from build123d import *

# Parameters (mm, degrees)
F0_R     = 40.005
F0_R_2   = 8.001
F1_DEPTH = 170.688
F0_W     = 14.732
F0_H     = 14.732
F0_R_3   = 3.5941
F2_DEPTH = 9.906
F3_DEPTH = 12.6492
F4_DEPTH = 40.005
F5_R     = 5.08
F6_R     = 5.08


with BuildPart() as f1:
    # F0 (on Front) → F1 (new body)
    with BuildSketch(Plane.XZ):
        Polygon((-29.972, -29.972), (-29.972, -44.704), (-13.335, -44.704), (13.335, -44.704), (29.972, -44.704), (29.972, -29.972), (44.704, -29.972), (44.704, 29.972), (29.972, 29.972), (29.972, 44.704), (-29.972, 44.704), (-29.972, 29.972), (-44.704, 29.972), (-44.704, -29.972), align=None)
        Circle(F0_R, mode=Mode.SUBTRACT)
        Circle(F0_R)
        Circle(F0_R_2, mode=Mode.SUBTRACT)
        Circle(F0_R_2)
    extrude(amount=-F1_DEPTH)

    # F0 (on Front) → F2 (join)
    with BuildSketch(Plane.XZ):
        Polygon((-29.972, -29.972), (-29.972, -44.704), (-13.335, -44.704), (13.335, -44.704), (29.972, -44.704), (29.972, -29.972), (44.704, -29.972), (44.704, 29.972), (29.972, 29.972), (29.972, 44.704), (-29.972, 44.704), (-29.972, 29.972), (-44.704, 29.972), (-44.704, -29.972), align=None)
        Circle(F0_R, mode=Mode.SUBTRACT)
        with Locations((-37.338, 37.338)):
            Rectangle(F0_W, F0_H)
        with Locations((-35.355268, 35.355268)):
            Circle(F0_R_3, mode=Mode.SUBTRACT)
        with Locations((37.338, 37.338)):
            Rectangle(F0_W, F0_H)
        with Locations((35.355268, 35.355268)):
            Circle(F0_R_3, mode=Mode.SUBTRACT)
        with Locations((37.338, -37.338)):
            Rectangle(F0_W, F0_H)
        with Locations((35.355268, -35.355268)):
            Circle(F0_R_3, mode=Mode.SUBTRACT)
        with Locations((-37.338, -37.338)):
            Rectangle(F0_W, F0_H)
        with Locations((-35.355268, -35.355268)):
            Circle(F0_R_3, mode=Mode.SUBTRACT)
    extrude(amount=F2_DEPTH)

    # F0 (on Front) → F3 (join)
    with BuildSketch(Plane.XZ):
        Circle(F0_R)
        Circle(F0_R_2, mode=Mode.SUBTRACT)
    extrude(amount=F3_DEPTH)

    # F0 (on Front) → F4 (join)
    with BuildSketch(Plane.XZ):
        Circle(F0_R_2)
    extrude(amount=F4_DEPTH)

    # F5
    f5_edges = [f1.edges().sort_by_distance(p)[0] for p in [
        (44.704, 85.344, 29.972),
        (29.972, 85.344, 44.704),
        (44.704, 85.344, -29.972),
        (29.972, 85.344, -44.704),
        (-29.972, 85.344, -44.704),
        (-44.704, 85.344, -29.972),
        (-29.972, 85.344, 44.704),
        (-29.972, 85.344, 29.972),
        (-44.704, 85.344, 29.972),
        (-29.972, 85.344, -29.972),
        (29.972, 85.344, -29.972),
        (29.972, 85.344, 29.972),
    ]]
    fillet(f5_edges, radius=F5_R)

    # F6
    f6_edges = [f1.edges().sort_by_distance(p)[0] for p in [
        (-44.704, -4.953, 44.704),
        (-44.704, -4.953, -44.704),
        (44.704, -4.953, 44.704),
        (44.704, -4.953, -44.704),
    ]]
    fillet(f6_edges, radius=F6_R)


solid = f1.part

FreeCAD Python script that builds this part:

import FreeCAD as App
import Part
import Sketcher
from FreeCAD import Vector
Q = App.Units.Quantity


def edges_at(feature, points):
    """Names of the edges that pass closest to the given points."""
    edges = feature.Shape.Edges
    near = lambda p: min(range(len(edges)), key=lambda i: edges[i].distToShape(Part.Vertex(*p))[0])
    return sorted({f"Edge{near(p) + 1}" for p in points})

doc = App.newDocument("Part")
body = doc.addObject("PartDesign::Body", "Body")

# Sketch on XZ plane
sketch1 = body.newObject("Sketcher::SketchObject", "Sketch")
sketch1.AttachmentSupport = (doc.getObject("XZ_Plane"), [""])
sketch1.MapMode = "FlatFace"
sketch1.addGeometry([
    Part.LineSegment(Vector(-29.972, -29.972, 0), Vector(-29.972, -44.704, 0)),  # 0
    Part.LineSegment(Vector(-29.972, -44.704, 0), Vector(29.972, -44.704, 0)),  # 1
    Part.LineSegment(Vector(29.972, -44.704, 0), Vector(29.972, -29.972, 0)),  # 2
    Part.LineSegment(Vector(29.972, -29.972, 0), Vector(44.704, -29.972, 0)),  # 3
    Part.LineSegment(Vector(44.704, -29.972, 0), Vector(44.704, 29.972, 0)),  # 4
    Part.LineSegment(Vector(44.704, 29.972, 0), Vector(29.972, 29.972, 0)),  # 5
    Part.LineSegment(Vector(29.972, 29.972, 0), Vector(29.972, 44.704, 0)),  # 6
    Part.LineSegment(Vector(29.972, 44.704, 0), Vector(-29.972, 44.704, 0)),  # 7
    Part.LineSegment(Vector(-29.972, 44.704, 0), Vector(-29.972, 29.972, 0)),  # 8
    Part.LineSegment(Vector(-29.972, 29.972, 0), Vector(-44.704, 29.972, 0)),  # 9
    Part.LineSegment(Vector(-44.704, 29.972, 0), Vector(-44.704, -29.972, 0)),  # 10
    Part.LineSegment(Vector(-44.704, -29.972, 0), Vector(-29.972, -29.972, 0)),  # 11
], False)
sketch1.addConstraint([
    Sketcher.Constraint("Coincident", 0, 2, 1, 1),
    Sketcher.Constraint("Coincident", 1, 2, 2, 1),
    Sketcher.Constraint("Coincident", 2, 2, 3, 1),
    Sketcher.Constraint("Coincident", 3, 2, 4, 1),
    Sketcher.Constraint("Coincident", 4, 2, 5, 1),
    Sketcher.Constraint("Coincident", 5, 2, 6, 1),
    Sketcher.Constraint("Coincident", 6, 2, 7, 1),
    Sketcher.Constraint("Coincident", 7, 2, 8, 1),
    Sketcher.Constraint("Coincident", 8, 2, 9, 1),
    Sketcher.Constraint("Coincident", 9, 2, 10, 1),
    Sketcher.Constraint("Coincident", 10, 2, 11, 1),
    Sketcher.Constraint("Coincident", 11, 2, 0, 1),
    Sketcher.Constraint("Vertical", 0),
    Sketcher.Constraint("Horizontal", 1),
    Sketcher.Constraint("Vertical", 2),
    Sketcher.Constraint("Horizontal", 3),
    Sketcher.Constraint("Vertical", 4),
    Sketcher.Constraint("Horizontal", 5),
    Sketcher.Constraint("Vertical", 6),
    Sketcher.Constraint("Horizontal", 7),
    Sketcher.Constraint("Vertical", 8),
    Sketcher.Constraint("Horizontal", 9),
    Sketcher.Constraint("Vertical", 10),
    Sketcher.Constraint("Horizontal", 11),
    Sketcher.Constraint("Symmetric", 0, 2, 6, 2, -1, 1),
    Sketcher.Constraint("Symmetric", 2, 2, 8, 2, -1, 1),
    Sketcher.Constraint("Symmetric", 4, 2, 10, 2, -1, 1),
    Sketcher.Constraint("Symmetric", 5, 2, 8, 2, -2),
    Sketcher.Constraint("Equal", 11, 0),
    Sketcher.Constraint("Equal", 7, 4),
    Sketcher.Constraint("DistanceX", 1, 1, 1, 2, Q("2.36 in")),
    Sketcher.Constraint("DistanceX", 3, 1, 3, 2, Q("0.58 in")),
])
pad1 = body.newObject("PartDesign::Pad", "Pad")
pad1.Profile = sketch1
pad1.Length = Q("6.72 in")
pad1.Reversed = True

# Sketch on XZ plane
sketch2 = body.newObject("Sketcher::SketchObject", "Sketch001")
sketch2.AttachmentSupport = (doc.getObject("XZ_Plane"), [""])
sketch2.MapMode = "FlatFace"
sketch2.addGeometry([
    Part.LineSegment(Vector(44.704, -44.704, 0), Vector(44.704, 44.704, 0)),  # 0
    Part.LineSegment(Vector(44.704, 44.704, 0), Vector(-44.704, 44.704, 0)),  # 1
    Part.LineSegment(Vector(-44.704, 44.704, 0), Vector(-44.704, -44.704, 0)),  # 2
    Part.LineSegment(Vector(-44.704, -44.704, 0), Vector(44.704, -44.704, 0)),  # 3
    Part.Circle(Vector(-35.355268, -35.355268, 0), Vector(0, 0, 1), 3.5941),  # 4
    Part.Circle(Vector(35.355268, -35.355268, 0), Vector(0, 0, 1), 3.5941),  # 5
    Part.Circle(Vector(-35.355268, 35.355268, 0), Vector(0, 0, 1), 3.5941),  # 6
    Part.Circle(Vector(0, 0, 0), Vector(0, 0, 1), 40.005),  # 7
    Part.Circle(Vector(35.355268, 35.355268, 0), Vector(0, 0, 1), 3.5941),  # 8
], False)
sketch2.addConstraint([
    Sketcher.Constraint("Coincident", 0, 2, 1, 1),
    Sketcher.Constraint("Coincident", 1, 2, 2, 1),
    Sketcher.Constraint("Coincident", 2, 2, 3, 1),
    Sketcher.Constraint("Coincident", 3, 2, 0, 1),
    Sketcher.Constraint("Vertical", 0),
    Sketcher.Constraint("Horizontal", 1),
    Sketcher.Constraint("Vertical", 2),
    Sketcher.Constraint("Horizontal", 3),
    Sketcher.Constraint("Coincident", 7, 3, -1, 1),
    Sketcher.Constraint("Equal", 4, 5),
    Sketcher.Constraint("Equal", 5, 6),
    Sketcher.Constraint("Equal", 6, 8),
    Sketcher.Constraint("Symmetric", 5, 3, 6, 3, -1, 1),
    Sketcher.Constraint("Symmetric", 4, 3, 8, 3, -1, 1),
    Sketcher.Constraint("Symmetric", 0, 2, 2, 2, -1, 1),
    Sketcher.Constraint("Symmetric", 4, 3, 5, 3, -2),
    Sketcher.Constraint("Equal", 3, 0),
    Sketcher.Constraint("Diameter", 7, Q("3.15 in")),
    Sketcher.Constraint("Diameter", 4, Q("0.283 in")),
    Sketcher.Constraint("DistanceX", 1, 2, 1, 1, Q("3.52 in")),
    Sketcher.Constraint("DistanceX", 4, 3, -1, 1, Q("35.355268 mm")),
    Sketcher.Constraint("DistanceY", 4, 3, -1, 1, Q("35.355268 mm")),
])
pad2 = body.newObject("PartDesign::Pad", "Pad001")
pad2.Profile = sketch2
pad2.Length = Q("0.39 in")

# Sketch on XZ plane
sketch3 = body.newObject("Sketcher::SketchObject", "Sketch002")
sketch3.AttachmentSupport = (doc.getObject("XZ_Plane"), [""])
sketch3.MapMode = "FlatFace"
sketch3.addGeometry([
    Part.Circle(Vector(0, 0, 0), Vector(0, 0, 1), 40.005),
    Part.Circle(Vector(0, 0, 0), Vector(0, 0, 1), 8.001),
], False)
sketch3.addConstraint([
    Sketcher.Constraint("Coincident", 0, 3, -1, 1),
    Sketcher.Constraint("Coincident", 1, 3, -1, 1),
    Sketcher.Constraint("Diameter", 0, Q("3.15 in")),
    Sketcher.Constraint("Diameter", 1, Q("0.63 in")),
])
pad3 = body.newObject("PartDesign::Pad", "Pad002")
pad3.Profile = sketch3
pad3.Length = Q("0.498 in")

# Sketch on XZ plane
sketch4 = body.newObject("Sketcher::SketchObject", "Sketch003")
sketch4.AttachmentSupport = (doc.getObject("XZ_Plane"), [""])
sketch4.MapMode = "FlatFace"
sketch4.addGeometry(Part.Circle(Vector(0, 0, 0), Vector(0, 0, 1), 8.001), False)
sketch4.addConstraint([
    Sketcher.Constraint("Coincident", 0, 3, -1, 1),
    Sketcher.Constraint("Diameter", 0, Q("0.63 in")),
])
pad4 = body.newObject("PartDesign::Pad", "Pad003")
pad4.Profile = sketch4
pad4.Length = Q("1.575 in")
doc.recompute()

fillet = body.newObject("PartDesign::Fillet", "Fillet")
fillet.Base = (pad4, edges_at(pad4, [
    (44.704, 85.344, 29.972),
    (29.972, 85.344, 44.704),
    (44.704, 85.344, -29.972),
    (29.972, 85.344, -44.704),
    (-29.972, 85.344, -44.704),
    (-44.704, 85.344, -29.972),
    (-29.972, 85.344, 44.704),
    (-29.972, 85.344, 29.972),
    (-44.704, 85.344, 29.972),
    (-29.972, 85.344, -29.972),
    (29.972, 85.344, -29.972),
    (29.972, 85.344, 29.972),
]))
fillet.Radius = Q("0.2 in")
doc.recompute()

fillet2 = body.newObject("PartDesign::Fillet", "Fillet001")
fillet2.Base = (fillet, edges_at(fillet, [
    (-44.704, -4.953, 44.704),
    (-44.704, -4.953, -44.704),
    (44.704, -4.953, 44.704),
    (44.704, -4.953, -44.704),
]))
fillet2.Radius = Q("0.2 in")

doc.recompute()
